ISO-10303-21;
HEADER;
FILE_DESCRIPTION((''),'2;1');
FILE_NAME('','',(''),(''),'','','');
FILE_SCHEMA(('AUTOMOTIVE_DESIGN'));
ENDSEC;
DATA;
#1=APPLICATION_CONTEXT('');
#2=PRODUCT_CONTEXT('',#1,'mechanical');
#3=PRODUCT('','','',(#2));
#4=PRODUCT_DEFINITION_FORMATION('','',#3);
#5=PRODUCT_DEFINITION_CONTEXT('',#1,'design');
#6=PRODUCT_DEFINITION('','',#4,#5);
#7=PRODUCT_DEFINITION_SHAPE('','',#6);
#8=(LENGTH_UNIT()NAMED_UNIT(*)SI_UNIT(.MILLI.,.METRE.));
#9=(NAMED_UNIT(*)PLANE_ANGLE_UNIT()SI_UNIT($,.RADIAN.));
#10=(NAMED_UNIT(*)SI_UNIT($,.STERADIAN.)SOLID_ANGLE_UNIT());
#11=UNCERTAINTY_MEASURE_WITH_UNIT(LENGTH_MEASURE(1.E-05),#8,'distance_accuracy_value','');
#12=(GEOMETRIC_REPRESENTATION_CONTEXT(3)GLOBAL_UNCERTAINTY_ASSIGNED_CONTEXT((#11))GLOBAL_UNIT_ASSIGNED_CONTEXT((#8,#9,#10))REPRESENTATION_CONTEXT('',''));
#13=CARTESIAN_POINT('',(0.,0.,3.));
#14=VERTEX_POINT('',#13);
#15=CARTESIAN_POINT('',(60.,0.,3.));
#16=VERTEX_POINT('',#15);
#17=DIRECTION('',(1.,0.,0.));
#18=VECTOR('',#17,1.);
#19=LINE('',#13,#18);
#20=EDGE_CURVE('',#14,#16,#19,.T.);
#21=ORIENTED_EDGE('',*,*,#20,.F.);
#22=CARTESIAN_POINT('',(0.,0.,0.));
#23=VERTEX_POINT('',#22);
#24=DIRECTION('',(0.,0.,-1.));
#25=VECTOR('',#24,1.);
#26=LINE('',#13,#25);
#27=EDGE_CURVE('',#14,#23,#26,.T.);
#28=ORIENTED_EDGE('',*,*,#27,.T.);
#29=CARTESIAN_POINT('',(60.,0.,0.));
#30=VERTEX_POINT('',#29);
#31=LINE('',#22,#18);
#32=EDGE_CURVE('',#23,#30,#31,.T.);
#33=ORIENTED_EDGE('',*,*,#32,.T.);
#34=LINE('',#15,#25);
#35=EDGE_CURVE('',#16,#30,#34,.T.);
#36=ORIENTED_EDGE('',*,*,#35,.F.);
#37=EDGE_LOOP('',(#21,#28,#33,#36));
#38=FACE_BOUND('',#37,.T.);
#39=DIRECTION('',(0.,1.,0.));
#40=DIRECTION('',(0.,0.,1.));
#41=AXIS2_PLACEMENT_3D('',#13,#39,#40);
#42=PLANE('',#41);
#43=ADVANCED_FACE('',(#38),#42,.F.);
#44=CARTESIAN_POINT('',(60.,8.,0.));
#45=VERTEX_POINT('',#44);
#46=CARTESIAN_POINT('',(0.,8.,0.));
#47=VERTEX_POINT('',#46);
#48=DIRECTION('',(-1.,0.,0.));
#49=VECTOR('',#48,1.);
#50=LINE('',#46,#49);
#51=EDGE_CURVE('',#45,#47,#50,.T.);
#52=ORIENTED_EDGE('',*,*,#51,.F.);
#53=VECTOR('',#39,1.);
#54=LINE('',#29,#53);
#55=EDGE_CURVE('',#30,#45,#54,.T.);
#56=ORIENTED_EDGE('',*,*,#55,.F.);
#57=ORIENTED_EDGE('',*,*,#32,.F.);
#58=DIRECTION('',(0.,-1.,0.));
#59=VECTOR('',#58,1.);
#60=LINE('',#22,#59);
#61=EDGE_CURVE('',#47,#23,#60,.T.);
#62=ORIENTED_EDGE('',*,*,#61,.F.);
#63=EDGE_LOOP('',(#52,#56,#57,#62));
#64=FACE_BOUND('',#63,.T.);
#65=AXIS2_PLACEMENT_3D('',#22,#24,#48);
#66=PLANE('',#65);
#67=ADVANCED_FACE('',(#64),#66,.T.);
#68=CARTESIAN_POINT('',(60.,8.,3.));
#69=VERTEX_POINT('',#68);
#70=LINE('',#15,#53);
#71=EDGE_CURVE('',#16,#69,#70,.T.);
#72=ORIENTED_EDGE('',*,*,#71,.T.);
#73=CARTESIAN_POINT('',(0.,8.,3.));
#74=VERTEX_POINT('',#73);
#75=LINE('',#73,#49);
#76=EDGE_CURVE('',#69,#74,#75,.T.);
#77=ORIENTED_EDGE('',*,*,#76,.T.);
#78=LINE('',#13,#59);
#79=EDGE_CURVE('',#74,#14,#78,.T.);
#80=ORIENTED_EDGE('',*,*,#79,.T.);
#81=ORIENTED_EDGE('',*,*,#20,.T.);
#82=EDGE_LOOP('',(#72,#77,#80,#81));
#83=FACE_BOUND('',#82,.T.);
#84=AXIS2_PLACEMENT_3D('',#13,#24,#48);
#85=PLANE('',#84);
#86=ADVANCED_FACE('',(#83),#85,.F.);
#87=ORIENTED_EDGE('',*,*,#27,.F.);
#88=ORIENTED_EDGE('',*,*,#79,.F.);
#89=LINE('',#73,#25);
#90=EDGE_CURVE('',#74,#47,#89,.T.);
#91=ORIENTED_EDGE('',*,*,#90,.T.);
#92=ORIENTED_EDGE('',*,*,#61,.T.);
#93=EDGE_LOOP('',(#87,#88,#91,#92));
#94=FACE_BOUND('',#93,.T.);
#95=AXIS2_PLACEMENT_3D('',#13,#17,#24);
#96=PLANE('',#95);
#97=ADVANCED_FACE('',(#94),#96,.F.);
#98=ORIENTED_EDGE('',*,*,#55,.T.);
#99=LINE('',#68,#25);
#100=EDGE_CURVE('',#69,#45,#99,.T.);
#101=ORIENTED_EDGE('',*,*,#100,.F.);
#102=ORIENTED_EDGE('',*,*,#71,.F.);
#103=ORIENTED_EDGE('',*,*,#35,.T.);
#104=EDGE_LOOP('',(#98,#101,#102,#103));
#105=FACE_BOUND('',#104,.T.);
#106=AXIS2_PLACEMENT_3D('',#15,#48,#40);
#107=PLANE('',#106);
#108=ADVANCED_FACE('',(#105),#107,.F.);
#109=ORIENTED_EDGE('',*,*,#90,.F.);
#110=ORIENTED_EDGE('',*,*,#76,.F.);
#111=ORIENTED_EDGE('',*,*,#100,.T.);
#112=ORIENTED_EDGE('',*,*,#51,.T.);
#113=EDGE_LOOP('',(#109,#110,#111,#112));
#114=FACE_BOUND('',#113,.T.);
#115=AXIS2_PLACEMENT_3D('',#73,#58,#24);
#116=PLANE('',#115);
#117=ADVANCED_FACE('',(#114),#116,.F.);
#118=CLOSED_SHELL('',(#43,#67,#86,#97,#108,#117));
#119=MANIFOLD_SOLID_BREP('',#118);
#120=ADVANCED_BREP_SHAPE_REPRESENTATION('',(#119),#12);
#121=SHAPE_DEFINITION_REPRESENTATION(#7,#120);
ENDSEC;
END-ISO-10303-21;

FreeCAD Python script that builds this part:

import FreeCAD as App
import Part
import Sketcher
from FreeCAD import Vector
Q = App.Units.Quantity

doc = App.newDocument("Part")
body = doc.addObject("PartDesign::Body", "Body")

# Sketch on XY plane
sketch1 = body.newObject("Sketcher::SketchObject", "Sketch")
sketch1.AttachmentSupport = (doc.getObject("XY_Plane"), [""])
sketch1.MapMode = "FlatFace"
sketch1.addGeometry([
    Part.LineSegment(Vector(0, 8, 0), Vector(0, 0, 0)),
    Part.LineSegment(Vector(0, 0, 0), Vector(60, 0, 0)),
    Part.LineSegment(Vector(60, 0, 0), Vector(60, 8, 0)),
    Part.LineSegment(Vector(60, 8, 0), Vector(0, 8, 0)),
], False)
sketch1.addConstraint([
    Sketcher.Constraint("Coincident", 0, 2, 1, 1),
    Sketcher.Constraint("Coincident", 1, 2, 2, 1),
    Sketcher.Constraint("Coincident", 2, 2, 3, 1),
    Sketcher.Constraint("Coincident", 3, 2, 0, 1),
    Sketcher.Constraint("Vertical", 0),
    Sketcher.Constraint("Horizontal", 1),
    Sketcher.Constraint("Vertical", 2),
    Sketcher.Constraint("Horizontal", 3),
    Sketcher.Constraint("Coincident", 0, 2, -1, 1),
    Sketcher.Constraint("DistanceX", 1, 1, 1, 2, Q("60 mm")),
    Sketcher.Constraint("DistanceY", 0, 2, 0, 1, Q("8 mm")),
])
pad1 = body.newObject("PartDesign::Pad", "Pad")
pad1.Profile = sketch1
pad1.Length = 3

doc.recompute()
